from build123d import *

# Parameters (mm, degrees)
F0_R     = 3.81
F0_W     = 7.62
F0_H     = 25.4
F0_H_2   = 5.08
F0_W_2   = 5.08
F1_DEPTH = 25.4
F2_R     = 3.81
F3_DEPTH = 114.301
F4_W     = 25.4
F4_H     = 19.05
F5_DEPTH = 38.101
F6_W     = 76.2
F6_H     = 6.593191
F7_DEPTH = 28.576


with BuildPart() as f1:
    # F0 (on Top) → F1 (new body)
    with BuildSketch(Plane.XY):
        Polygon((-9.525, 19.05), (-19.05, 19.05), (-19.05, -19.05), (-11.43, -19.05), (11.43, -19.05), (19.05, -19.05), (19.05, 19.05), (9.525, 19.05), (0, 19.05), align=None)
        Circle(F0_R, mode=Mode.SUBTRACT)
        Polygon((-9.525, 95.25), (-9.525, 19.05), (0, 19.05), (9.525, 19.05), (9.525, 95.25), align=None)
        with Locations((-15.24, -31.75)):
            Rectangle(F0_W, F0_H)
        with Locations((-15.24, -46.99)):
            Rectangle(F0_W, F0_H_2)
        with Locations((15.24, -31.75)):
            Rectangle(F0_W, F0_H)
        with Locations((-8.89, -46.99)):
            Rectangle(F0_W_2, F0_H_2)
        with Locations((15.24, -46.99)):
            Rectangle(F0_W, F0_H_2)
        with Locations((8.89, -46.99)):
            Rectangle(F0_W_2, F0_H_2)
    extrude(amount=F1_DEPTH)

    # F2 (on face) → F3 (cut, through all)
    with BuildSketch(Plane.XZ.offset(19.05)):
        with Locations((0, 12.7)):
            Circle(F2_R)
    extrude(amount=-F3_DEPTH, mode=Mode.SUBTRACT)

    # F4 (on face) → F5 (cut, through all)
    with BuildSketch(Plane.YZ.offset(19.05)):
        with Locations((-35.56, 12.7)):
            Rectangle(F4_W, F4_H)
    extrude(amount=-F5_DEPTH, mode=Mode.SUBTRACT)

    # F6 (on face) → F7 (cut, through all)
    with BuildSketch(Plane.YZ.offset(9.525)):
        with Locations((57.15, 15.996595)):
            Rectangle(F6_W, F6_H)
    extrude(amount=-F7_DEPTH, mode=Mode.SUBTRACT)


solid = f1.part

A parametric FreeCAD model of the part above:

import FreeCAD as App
import Part
import Sketcher
Q = App.Units.Quantity

doc = App.newDocument("Part")
body = doc.addObject("PartDesign::Body", "Body")

# Sketch on XY plane
sketch1 = body.newObject("Sketcher::SketchObject", "Sketch")
sketch1.AttachmentSupport = (doc.getObject("XY_Plane"), [""])
sketch1.MapMode = "FlatFace"
sketch1.addGeometry([
    Part.LineSegment(App.Vector(-19.1, 19.1, 0), App.Vector(-19.1, -49.5, 0)),  # 0
    Part.LineSegment(App.Vector(-19.1, -49.5, 0), App.Vector(-6.3, -49.5, 0)),  # 1
    Part.LineSegment(App.Vector(-6.3, -49.5, 0), App.Vector(-6.3, -44.5, 0)),  # 2
    Part.LineSegment(App.Vector(-6.3, -44.5, 0), App.Vector(-11.4, -44.5, 0)),  # 3
    Part.LineSegment(App.Vector(-11.4, -44.5, 0), App.Vector(-11.4, -19.1, 0)),  # 4
    Part.LineSegment(App.Vector(-11.4, -19.1, 0), App.Vector(11.4, -19.1, 0)),  # 5
    Part.LineSegment(App.Vector(11.4, -19.1, 0), App.Vector(11.4, -44.5, 0)),  # 6
    Part.LineSegment(App.Vector(11.4, -44.5, 0), App.Vector(6.3, -44.5, 0)),  # 7
    Part.LineSegment(App.Vector(6.3, -44.5, 0), App.Vector(6.3, -49.5, 0)),  # 8
    Part.LineSegment(App.Vector(6.3, -49.5, 0), App.Vector(19.1, -49.5, 0)),  # 9
    Part.LineSegment(App.Vector(19.1, -49.5, 0), App.Vector(19.1, 19.1, 0)),  # 10
    Part.LineSegment(App.Vector(19.1, 19.1, 0), App.Vector(9.5, 19.1, 0)),  # 11
    Part.LineSegment(App.Vector(9.5, 19.1, 0), App.Vector(9.5, 95.2, 0)),  # 12
    Part.LineSegment(App.Vector(9.5, 95.2, 0), App.Vector(-9.5, 95.2, 0)),  # 13
    Part.LineSegment(App.Vector(-9.5, 95.2, 0), App.Vector(-9.5, 19.1, 0)),  # 14
    Part.LineSegment(App.Vector(-9.5, 19.1, 0), App.Vector(-19.1, 19.1, 0)),  # 15
    Part.Circle(App.Vector(0, 0, 0), App.Vector(0, 0, 1), 3.8),  # 16
], False)
sketch1.addConstraint([
    Sketcher.Constraint("Coincident", 0, 2, 1, 1),
    Sketcher.Constraint("Coincident", 1, 2, 2, 1),
    Sketcher.Constraint("Coincident", 2, 2, 3, 1),
    Sketcher.Constraint("Coincident", 3, 2, 4, 1),
    Sketcher.Constraint("Coincident", 4, 2, 5, 1),
    Sketcher.Constraint("Coincident", 5, 2, 6, 1),
    Sketcher.Constraint("Coincident", 6, 2, 7, 1),
    Sketcher.Constraint("Coincident", 7, 2, 8, 1),
    Sketcher.Constraint("Coincident", 8, 2, 9, 1),
    Sketcher.Constraint("Coincident", 9, 2, 10, 1),
    Sketcher.Constraint("Coincident", 10, 2, 11, 1),
    Sketcher.Constraint("Coincident", 11, 2, 12, 1),
    Sketcher.Constraint("Coincident", 12, 2, 13, 1),
    Sketcher.Constraint("Coincident", 13, 2, 14, 1),
    Sketcher.Constraint("Coincident", 14, 2, 15, 1),
    Sketcher.Constraint("Coincident", 15, 2, 0, 1),
    Sketcher.Constraint("Vertical", 0),
    Sketcher.Constraint("Horizontal", 1),
    Sketcher.Constraint("Vertical", 2),
    Sketcher.Constraint("Horizontal", 3),
    Sketcher.Constraint("Vertical", 4),
    Sketcher.Constraint("Horizontal", 5),
    Sketcher.Constraint("Vertical", 6),
    Sketcher.Constraint("Horizontal", 7),
    Sketcher.Constraint("Vertical", 8),
    Sketcher.Constraint("Horizontal", 9),
    Sketcher.Constraint("Vertical", 10),
    Sketcher.Constraint("Horizontal", 11),
    Sketcher.Constraint("Vertical", 12),
    Sketcher.Constraint("Horizontal", 13),
    Sketcher.Constraint("Vertical", 14),
    Sketcher.Constraint("Horizontal", 15),
    Sketcher.Constraint("Coincident", 16, 3, -1, 1),
    Sketcher.Constraint("Symmetric", 3, 2, 6, 2, -2),
    Sketcher.Constraint("Symmetric", 1, 2, 8, 2, -2),
    Sketcher.Constraint("Symmetric", 11, 2, 14, 2, -2),
    Sketcher.Constraint("Equal", 1, 9),
    Sketcher.Constraint("Equal", 7, 2),
    Sketcher.Constraint("Diameter", 16, Q("0.3 in")),
    Sketcher.Constraint("DistanceY", 4, 1, 4, 2, Q("1 in")),
    Sketcher.Constraint("DistanceY", 12, 1, 12, 2, Q("3 in")),
    Sketcher.Constraint("DistanceX", 1, 1, 1, 2, Q("0.5 in")),
    Sketcher.Constraint("DistanceX", 3, 2, 3, 1, Q("0.2 in")),
    Sketcher.Constraint("DistanceX", 5, 1, 5, 2, Q("0.9 in")),
    Sketcher.Constraint("DistanceY", 0, 2, 0, 1, Q("2.7 in")),
    Sketcher.Constraint("DistanceX", 13, 2, 13, 1, Q("0.75 in")),
    Sketcher.Constraint("DistanceY", 0, 2, -1, 1, Q("1.95 in")),
])
pad1 = body.newObject("PartDesign::Pad", "Pad")
pad1.Profile = sketch1
pad1.Length = Q("1 in")

# Sketch on XZ plane
sketch2 = body.newObject("Sketcher::SketchObject", "Sketch001")
sketch2.AttachmentSupport = (doc.getObject("XZ_Plane"), [""])
sketch2.MapMode = "FlatFace"
sketch2.AttachmentOffset = App.Placement(App.Vector(0, 0, 0.75 * 25.4), App.Rotation())
sketch2.addGeometry(Part.Circle(App.Vector(0, 12.7, 0), App.Vector(0, 0, 1), 3.8), False)
sketch2.addConstraint([
    Sketcher.Constraint("PointOnObject", 0, 3, -2),
    Sketcher.Constraint("Diameter", 0, Q("0.3 in")),
    Sketcher.Constraint("DistanceY", -1, 1, 0, 3, Q("0.5 in")),
])
pocket1 = body.newObject("PartDesign::Pocket", "Pocket")
pocket1.Profile = sketch2
pocket1.Type = "ThroughAll"

# Sketch on YZ plane
sketch3 = body.newObject("Sketcher::SketchObject", "Sketch002")
sketch3.AttachmentSupport = (doc.getObject("YZ_Plane"), [""])
sketch3.MapMode = "FlatFace"
sketch3.AttachmentOffset = App.Placement(App.Vector(0, 0, 0.75 * 25.4), App.Rotation())
sketch3.addGeometry([
    Part.LineSegment(App.Vector(-48, 22, 0), App.Vector(-48, 3, 0)),
    Part.LineSegment(App.Vector(-48, 3, 0), App.Vector(-23, 3, 0)),
    Part.LineSegment(App.Vector(-23, 3, 0), App.Vector(-23, 22, 0)),
    Part.LineSegment(App.Vector(-23, 22, 0), App.Vector(-48, 22, 0)),
], False)
sketch3.addConstraint([
    Sketcher.Constraint("Coincident", 0, 2, 1, 1),
    Sketcher.Constraint("Coincident", 1, 2, 2, 1),
    Sketcher.Constraint("Coincident", 2, 2, 3, 1),
    Sketcher.Constraint("Coincident", 3, 2, 0, 1),
    Sketcher.Constraint("Vertical", 0),
    Sketcher.Constraint("Horizontal", 1),
    Sketcher.Constraint("Vertical", 2),
    Sketcher.Constraint("Horizontal", 3),
    Sketcher.Constraint("DistanceX", 1, 1, 1, 2, Q("1 in")),
    Sketcher.Constraint("DistanceY", 0, 2, 0, 1, Q("0.75 in")),
    Sketcher.Constraint("DistanceX", 0, 2, -1, 1, Q("1.9 in")),
    Sketcher.Constraint("DistanceY", -1, 1, 0, 2, Q("0.125 in")),
])
pocket2 = body.newObject("PartDesign::Pocket", "Pocket001")
pocket2.Profile = sketch3
pocket2.Type = "ThroughAll"

# Sketch on YZ plane
sketch4 = body.newObject("Sketcher::SketchObject", "Sketch003")
sketch4.AttachmentSupport = (doc.getObject("YZ_Plane"), [""])
sketch4.MapMode = "FlatFace"
sketch4.AttachmentOffset = App.Placement(App.Vector(0, 0, 0.375 * 25.4), App.Rotation())
sketch4.addGeometry([
    Part.LineSegment(App.Vector(19, 19, 0), App.Vector(19, 13, 0)),
    Part.LineSegment(App.Vector(19, 13, 0), App.Vector(95, 13, 0)),
    Part.LineSegment(App.Vector(95, 13, 0), App.Vector(95, 19, 0)),
    Part.LineSegment(App.Vector(95, 19, 0), App.Vector(19, 19, 0)),
], False)
sketch4.addConstraint([
    Sketcher.Constraint("Coincident", 0, 2, 1, 1),
    Sketcher.Constraint("Coincident", 1, 2, 2, 1),
    Sketcher.Constraint("Coincident", 2, 2, 3, 1),
    Sketcher.Constraint("Coincident", 3, 2, 0, 1),
    Sketcher.Constraint("Vertical", 0),
    Sketcher.Constraint("Horizontal", 1),
    Sketcher.Constraint("Vertical", 2),
    Sketcher.Constraint("Horizontal", 3),
    Sketcher.Constraint("DistanceX", 1, 1, 1, 2, Q("3 in")),
    Sketcher.Constraint("DistanceY", -1, 1, 0, 2, Q("0.5 in")),
    Sketcher.Constraint("DistanceX", -1, 1, 0, 2, Q("0.75 in")),
    Sketcher.Constraint("DistanceY", 0, 2, 0, 1, Q("6.593191 mm")),
])
pocket3 = body.newObject("PartDesign::Pocket", "Pocket002")
pocket3.Profile = sketch4
pocket3.Type = "ThroughAll"

doc.recompute()
